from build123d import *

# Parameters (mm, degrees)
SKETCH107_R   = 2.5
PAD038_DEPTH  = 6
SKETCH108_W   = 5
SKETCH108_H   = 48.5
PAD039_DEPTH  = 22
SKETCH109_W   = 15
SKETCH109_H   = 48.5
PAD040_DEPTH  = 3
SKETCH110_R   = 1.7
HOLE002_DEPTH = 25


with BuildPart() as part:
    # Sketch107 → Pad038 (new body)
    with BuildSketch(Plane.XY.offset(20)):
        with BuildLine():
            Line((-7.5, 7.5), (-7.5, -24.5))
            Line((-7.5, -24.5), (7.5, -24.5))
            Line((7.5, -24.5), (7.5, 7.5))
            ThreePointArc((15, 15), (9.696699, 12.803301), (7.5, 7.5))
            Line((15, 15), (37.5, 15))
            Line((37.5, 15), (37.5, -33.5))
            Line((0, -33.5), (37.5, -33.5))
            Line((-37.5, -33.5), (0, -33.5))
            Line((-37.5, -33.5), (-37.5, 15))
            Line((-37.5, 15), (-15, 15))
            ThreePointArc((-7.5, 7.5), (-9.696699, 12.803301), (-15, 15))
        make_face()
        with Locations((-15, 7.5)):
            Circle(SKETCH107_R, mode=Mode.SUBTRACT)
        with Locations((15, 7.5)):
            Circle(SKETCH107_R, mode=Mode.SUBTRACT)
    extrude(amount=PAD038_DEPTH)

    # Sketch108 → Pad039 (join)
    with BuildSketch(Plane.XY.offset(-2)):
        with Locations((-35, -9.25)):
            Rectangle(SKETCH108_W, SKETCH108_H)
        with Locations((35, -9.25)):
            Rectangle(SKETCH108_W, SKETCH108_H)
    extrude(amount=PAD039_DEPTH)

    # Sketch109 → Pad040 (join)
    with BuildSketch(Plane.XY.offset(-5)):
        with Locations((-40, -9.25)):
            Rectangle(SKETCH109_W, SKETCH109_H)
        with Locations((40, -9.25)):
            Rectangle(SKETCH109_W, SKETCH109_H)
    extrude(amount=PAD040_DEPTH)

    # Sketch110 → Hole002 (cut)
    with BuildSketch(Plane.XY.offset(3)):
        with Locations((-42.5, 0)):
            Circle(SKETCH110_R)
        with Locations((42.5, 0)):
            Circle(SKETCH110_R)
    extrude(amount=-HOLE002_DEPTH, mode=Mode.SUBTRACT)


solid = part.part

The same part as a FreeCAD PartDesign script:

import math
import FreeCAD as App
import Part
import Sketcher
from FreeCAD import Vector
Q = App.Units.Quantity


def add_polygon(sketch, points):
    """Adds a closed chain of lines whose ends are joined by coincident constraints."""
    first, n = sketch.GeometryCount, len(points)
    for a, b in zip(points, points[1:] + points[:1]):
        sketch.addGeometry(Part.LineSegment(App.Vector(*a, 0), App.Vector(*b, 0)), False)
    for i in range(n):
        sketch.addConstraint(Sketcher.Constraint("Coincident", first + i, 2, first + (i + 1) % n, 1))

doc = App.newDocument("Part")
body = doc.addObject("PartDesign::Body", "Body")

sketch1 = body.newObject("Sketcher::SketchObject", "Sketch")
sketch1.AttachmentSupport = (doc.getObject("XY_Plane"), [""])
sketch1.MapMode = "FlatFace"
sketch1.AttachmentOffset = App.Placement(Vector(0, 0, 20), App.Rotation())
sketch1.addGeometry([
    Part.LineSegment(Vector(-7.5, -24.5, 0), Vector(-7.5, 7.5, 0)),
    Part.ArcOfCircle(Part.Circle(Vector(-15, 7.5, 0), Vector(0, 0, 1), 7.5), math.radians(0), math.radians(90)),
    Part.LineSegment(Vector(-15, 15, 0), Vector(-37.5, 15, 0)),
    Part.LineSegment(Vector(-37.5, 15, 0), Vector(-37.5, -33.5, 0)),
    Part.LineSegment(Vector(-37.5, -33.5, 0), Vector(37.5, -33.5, 0)),
    Part.LineSegment(Vector(37.5, -33.5, 0), Vector(37.5, 15, 0)),
    Part.LineSegment(Vector(37.5, 15, 0), Vector(15, 15, 0)),
    Part.ArcOfCircle(Part.Circle(Vector(15, 7.5, 0), Vector(0, 0, 1), 7.5), math.radians(90), math.radians(180)),
    Part.LineSegment(Vector(7.5, 7.5, 0), Vector(7.5, -24.5, 0)),
    Part.LineSegment(Vector(7.5, -24.5, 0), Vector(-7.5, -24.5, 0)),
    Part.Circle(Vector(15, 7.5, 0), Vector(0, 0, 1), 2.5),
    Part.Circle(Vector(-15, 7.5, 0), Vector(0, 0, 1), 2.5),
], False)
sketch1.addConstraint([
    Sketcher.Constraint("Tangent", 0, 2, 1, 1),
    Sketcher.Constraint("Tangent", 1, 2, 2, 1),
    Sketcher.Constraint("Coincident", 2, 2, 3, 1),
    Sketcher.Constraint("Coincident", 3, 2, 4, 1),
    Sketcher.Constraint("Coincident", 4, 2, 5, 1),
    Sketcher.Constraint("Coincident", 5, 2, 6, 1),
    Sketcher.Constraint("Tangent", 6, 2, 7, 1),
    Sketcher.Constraint("Tangent", 7, 2, 8, 1),
    Sketcher.Constraint("Coincident", 8, 2, 9, 1),
    Sketcher.Constraint("Coincident", 9, 2, 0, 1),
    Sketcher.Constraint("Vertical", 0),
    Sketcher.Constraint("Horizontal", 2),
    Sketcher.Constraint("Vertical", 3),
    Sketcher.Constraint("Horizontal", 4),
    Sketcher.Constraint("Vertical", 5),
    Sketcher.Constraint("Horizontal", 6),
    Sketcher.Constraint("Vertical", 8),
    Sketcher.Constraint("Horizontal", 9),
    Sketcher.Constraint("Coincident", 10, 3, 7, 3),
    Sketcher.Constraint("Coincident", 11, 3, 1, 3),
    Sketcher.Constraint("Equal", 1, 7),
    Sketcher.Constraint("Equal", 10, 11),
    Sketcher.Constraint("Symmetric", 1, 3, 7, 3, -2),
    Sketcher.Constraint("Equal", 2, 6),
    Sketcher.Constraint("Diameter", 10, Q("5 mm")),
    Sketcher.Constraint("Radius", 1, Q("7.5 mm")),
    Sketcher.Constraint("DistanceX", 4, 1, 4, 2, Q("75 mm")),
    Sketcher.Constraint("DistanceX", 9, 2, 9, 1, Q("15 mm")),
    Sketcher.Constraint("DistanceY", 0, 1, 0, 2, Q("32 mm")),
    Sketcher.Constraint("DistanceY", 3, 2, 3, 1, Q("48.5 mm")),
    Sketcher.Constraint("DistanceY", -1, 1, 1, 2, Q("15 mm")),
])
pad1 = body.newObject("PartDesign::Pad", "Pad")
pad1.Profile = sketch1
pad1.Length = 6

sketch2 = body.newObject("Sketcher::SketchObject", "Sketch001")
sketch2.AttachmentSupport = (doc.getObject("XY_Plane"), [""])
sketch2.MapMode = "FlatFace"
sketch2.AttachmentOffset = App.Placement(Vector(0, 0, -2), App.Rotation())
add_polygon(sketch2, [(-38, 15), (-38, -34), (-32, -34), (-32, 15)])
add_polygon(sketch2, [(32, 15), (32, -34), (38, -34), (38, 15)])
sketch2.addConstraint([
    Sketcher.Constraint("Vertical", 0),
    Sketcher.Constraint("Horizontal", 1),
    Sketcher.Constraint("Vertical", 2),
    Sketcher.Constraint("Horizontal", 3),
    Sketcher.Constraint("Vertical", 4),
    Sketcher.Constraint("Horizontal", 5),
    Sketcher.Constraint("Vertical", 6),
    Sketcher.Constraint("Horizontal", 7),
    Sketcher.Constraint("Symmetric", 1, 2, 4, 2, -2),
    Sketcher.Constraint("Symmetric", 3, 2, 6, 2, -2),
    Sketcher.Constraint("DistanceX", 1, 1, 1, 2, Q("5 mm")),
    Sketcher.Constraint("DistanceY", 0, 2, 0, 1, Q("48.5 mm")),
    Sketcher.Constraint("DistanceY", -1, 1, 2, 2, Q("15 mm")),
    Sketcher.Constraint("DistanceX", 1, 2, 4, 2, Q("65 mm")),
])
pad2 = body.newObject("PartDesign::Pad", "Pad001")
pad2.Profile = sketch2
pad2.Length = 22

sketch3 = body.newObject("Sketcher::SketchObject", "Sketch002")
sketch3.AttachmentSupport = (doc.getObject("XY_Plane"), [""])
sketch3.MapMode = "FlatFace"
sketch3.AttachmentOffset = App.Placement(Vector(0, 0, -5), App.Rotation())
add_polygon(sketch3, [(-48, 15), (-48, -34), (-32, -34), (-32, 15)])
add_polygon(sketch3, [(32, 15), (32, -34), (48, -34), (48, 15)])
sketch3.addConstraint([
    Sketcher.Constraint("Vertical", 0),
    Sketcher.Constraint("Horizontal", 1),
    Sketcher.Constraint("Vertical", 2),
    Sketcher.Constraint("Horizontal", 3),
    Sketcher.Constraint("Vertical", 4),
    Sketcher.Constraint("Horizontal", 5),
    Sketcher.Constraint("Vertical", 6),
    Sketcher.Constraint("Horizontal", 7),
    Sketcher.Constraint("Symmetric", 1, 2, 4, 2, -2),
    Sketcher.Constraint("Symmetric", 3, 2, 6, 2, -2),
    Sketcher.Constraint("DistanceX", 1, 1, 1, 2, Q("15 mm")),
    Sketcher.Constraint("DistanceY", 0, 2, 0, 1, Q("48.5 mm")),
    Sketcher.Constraint("DistanceY", -1, 1, 2, 2, Q("15 mm")),
    Sketcher.Constraint("DistanceX", 1, 2, 4, 2, Q("65 mm")),
])
pad3 = body.newObject("PartDesign::Pad", "Pad002")
pad3.Profile = sketch3
pad3.Length = 3

sketch4 = body.newObject("Sketcher::SketchObject", "Sketch003")
sketch4.AttachmentSupport = (doc.getObject("XY_Plane"), [""])
sketch4.MapMode = "FlatFace"
sketch4.AttachmentOffset = App.Placement(Vector(0, 0, 3), App.Rotation())
sketch4.addGeometry([
    Part.Circle(Vector(-42.5, 0, 0), Vector(0, 0, 1), 1.7),
    Part.Circle(Vector(42.5, 0, 0), Vector(0, 0, 1), 1.7),
], False)
sketch4.addConstraint([
    Sketcher.Constraint("Equal", 0, 1),
    Sketcher.Constraint("Symmetric", 0, 3, 1, 3, -1, 1),
    Sketcher.Constraint("PointOnObject", 0, 3, -1),
    Sketcher.Constraint("Diameter", 0, Q("3.4 mm")),
    Sketcher.Constraint("DistanceX", 0, 3, 1, 3, Q("85 mm")),
])
pocket1 = body.newObject("PartDesign::Pocket", "Pocket")
pocket1.Profile = sketch4
pocket1.Length = 25

doc.recompute()
